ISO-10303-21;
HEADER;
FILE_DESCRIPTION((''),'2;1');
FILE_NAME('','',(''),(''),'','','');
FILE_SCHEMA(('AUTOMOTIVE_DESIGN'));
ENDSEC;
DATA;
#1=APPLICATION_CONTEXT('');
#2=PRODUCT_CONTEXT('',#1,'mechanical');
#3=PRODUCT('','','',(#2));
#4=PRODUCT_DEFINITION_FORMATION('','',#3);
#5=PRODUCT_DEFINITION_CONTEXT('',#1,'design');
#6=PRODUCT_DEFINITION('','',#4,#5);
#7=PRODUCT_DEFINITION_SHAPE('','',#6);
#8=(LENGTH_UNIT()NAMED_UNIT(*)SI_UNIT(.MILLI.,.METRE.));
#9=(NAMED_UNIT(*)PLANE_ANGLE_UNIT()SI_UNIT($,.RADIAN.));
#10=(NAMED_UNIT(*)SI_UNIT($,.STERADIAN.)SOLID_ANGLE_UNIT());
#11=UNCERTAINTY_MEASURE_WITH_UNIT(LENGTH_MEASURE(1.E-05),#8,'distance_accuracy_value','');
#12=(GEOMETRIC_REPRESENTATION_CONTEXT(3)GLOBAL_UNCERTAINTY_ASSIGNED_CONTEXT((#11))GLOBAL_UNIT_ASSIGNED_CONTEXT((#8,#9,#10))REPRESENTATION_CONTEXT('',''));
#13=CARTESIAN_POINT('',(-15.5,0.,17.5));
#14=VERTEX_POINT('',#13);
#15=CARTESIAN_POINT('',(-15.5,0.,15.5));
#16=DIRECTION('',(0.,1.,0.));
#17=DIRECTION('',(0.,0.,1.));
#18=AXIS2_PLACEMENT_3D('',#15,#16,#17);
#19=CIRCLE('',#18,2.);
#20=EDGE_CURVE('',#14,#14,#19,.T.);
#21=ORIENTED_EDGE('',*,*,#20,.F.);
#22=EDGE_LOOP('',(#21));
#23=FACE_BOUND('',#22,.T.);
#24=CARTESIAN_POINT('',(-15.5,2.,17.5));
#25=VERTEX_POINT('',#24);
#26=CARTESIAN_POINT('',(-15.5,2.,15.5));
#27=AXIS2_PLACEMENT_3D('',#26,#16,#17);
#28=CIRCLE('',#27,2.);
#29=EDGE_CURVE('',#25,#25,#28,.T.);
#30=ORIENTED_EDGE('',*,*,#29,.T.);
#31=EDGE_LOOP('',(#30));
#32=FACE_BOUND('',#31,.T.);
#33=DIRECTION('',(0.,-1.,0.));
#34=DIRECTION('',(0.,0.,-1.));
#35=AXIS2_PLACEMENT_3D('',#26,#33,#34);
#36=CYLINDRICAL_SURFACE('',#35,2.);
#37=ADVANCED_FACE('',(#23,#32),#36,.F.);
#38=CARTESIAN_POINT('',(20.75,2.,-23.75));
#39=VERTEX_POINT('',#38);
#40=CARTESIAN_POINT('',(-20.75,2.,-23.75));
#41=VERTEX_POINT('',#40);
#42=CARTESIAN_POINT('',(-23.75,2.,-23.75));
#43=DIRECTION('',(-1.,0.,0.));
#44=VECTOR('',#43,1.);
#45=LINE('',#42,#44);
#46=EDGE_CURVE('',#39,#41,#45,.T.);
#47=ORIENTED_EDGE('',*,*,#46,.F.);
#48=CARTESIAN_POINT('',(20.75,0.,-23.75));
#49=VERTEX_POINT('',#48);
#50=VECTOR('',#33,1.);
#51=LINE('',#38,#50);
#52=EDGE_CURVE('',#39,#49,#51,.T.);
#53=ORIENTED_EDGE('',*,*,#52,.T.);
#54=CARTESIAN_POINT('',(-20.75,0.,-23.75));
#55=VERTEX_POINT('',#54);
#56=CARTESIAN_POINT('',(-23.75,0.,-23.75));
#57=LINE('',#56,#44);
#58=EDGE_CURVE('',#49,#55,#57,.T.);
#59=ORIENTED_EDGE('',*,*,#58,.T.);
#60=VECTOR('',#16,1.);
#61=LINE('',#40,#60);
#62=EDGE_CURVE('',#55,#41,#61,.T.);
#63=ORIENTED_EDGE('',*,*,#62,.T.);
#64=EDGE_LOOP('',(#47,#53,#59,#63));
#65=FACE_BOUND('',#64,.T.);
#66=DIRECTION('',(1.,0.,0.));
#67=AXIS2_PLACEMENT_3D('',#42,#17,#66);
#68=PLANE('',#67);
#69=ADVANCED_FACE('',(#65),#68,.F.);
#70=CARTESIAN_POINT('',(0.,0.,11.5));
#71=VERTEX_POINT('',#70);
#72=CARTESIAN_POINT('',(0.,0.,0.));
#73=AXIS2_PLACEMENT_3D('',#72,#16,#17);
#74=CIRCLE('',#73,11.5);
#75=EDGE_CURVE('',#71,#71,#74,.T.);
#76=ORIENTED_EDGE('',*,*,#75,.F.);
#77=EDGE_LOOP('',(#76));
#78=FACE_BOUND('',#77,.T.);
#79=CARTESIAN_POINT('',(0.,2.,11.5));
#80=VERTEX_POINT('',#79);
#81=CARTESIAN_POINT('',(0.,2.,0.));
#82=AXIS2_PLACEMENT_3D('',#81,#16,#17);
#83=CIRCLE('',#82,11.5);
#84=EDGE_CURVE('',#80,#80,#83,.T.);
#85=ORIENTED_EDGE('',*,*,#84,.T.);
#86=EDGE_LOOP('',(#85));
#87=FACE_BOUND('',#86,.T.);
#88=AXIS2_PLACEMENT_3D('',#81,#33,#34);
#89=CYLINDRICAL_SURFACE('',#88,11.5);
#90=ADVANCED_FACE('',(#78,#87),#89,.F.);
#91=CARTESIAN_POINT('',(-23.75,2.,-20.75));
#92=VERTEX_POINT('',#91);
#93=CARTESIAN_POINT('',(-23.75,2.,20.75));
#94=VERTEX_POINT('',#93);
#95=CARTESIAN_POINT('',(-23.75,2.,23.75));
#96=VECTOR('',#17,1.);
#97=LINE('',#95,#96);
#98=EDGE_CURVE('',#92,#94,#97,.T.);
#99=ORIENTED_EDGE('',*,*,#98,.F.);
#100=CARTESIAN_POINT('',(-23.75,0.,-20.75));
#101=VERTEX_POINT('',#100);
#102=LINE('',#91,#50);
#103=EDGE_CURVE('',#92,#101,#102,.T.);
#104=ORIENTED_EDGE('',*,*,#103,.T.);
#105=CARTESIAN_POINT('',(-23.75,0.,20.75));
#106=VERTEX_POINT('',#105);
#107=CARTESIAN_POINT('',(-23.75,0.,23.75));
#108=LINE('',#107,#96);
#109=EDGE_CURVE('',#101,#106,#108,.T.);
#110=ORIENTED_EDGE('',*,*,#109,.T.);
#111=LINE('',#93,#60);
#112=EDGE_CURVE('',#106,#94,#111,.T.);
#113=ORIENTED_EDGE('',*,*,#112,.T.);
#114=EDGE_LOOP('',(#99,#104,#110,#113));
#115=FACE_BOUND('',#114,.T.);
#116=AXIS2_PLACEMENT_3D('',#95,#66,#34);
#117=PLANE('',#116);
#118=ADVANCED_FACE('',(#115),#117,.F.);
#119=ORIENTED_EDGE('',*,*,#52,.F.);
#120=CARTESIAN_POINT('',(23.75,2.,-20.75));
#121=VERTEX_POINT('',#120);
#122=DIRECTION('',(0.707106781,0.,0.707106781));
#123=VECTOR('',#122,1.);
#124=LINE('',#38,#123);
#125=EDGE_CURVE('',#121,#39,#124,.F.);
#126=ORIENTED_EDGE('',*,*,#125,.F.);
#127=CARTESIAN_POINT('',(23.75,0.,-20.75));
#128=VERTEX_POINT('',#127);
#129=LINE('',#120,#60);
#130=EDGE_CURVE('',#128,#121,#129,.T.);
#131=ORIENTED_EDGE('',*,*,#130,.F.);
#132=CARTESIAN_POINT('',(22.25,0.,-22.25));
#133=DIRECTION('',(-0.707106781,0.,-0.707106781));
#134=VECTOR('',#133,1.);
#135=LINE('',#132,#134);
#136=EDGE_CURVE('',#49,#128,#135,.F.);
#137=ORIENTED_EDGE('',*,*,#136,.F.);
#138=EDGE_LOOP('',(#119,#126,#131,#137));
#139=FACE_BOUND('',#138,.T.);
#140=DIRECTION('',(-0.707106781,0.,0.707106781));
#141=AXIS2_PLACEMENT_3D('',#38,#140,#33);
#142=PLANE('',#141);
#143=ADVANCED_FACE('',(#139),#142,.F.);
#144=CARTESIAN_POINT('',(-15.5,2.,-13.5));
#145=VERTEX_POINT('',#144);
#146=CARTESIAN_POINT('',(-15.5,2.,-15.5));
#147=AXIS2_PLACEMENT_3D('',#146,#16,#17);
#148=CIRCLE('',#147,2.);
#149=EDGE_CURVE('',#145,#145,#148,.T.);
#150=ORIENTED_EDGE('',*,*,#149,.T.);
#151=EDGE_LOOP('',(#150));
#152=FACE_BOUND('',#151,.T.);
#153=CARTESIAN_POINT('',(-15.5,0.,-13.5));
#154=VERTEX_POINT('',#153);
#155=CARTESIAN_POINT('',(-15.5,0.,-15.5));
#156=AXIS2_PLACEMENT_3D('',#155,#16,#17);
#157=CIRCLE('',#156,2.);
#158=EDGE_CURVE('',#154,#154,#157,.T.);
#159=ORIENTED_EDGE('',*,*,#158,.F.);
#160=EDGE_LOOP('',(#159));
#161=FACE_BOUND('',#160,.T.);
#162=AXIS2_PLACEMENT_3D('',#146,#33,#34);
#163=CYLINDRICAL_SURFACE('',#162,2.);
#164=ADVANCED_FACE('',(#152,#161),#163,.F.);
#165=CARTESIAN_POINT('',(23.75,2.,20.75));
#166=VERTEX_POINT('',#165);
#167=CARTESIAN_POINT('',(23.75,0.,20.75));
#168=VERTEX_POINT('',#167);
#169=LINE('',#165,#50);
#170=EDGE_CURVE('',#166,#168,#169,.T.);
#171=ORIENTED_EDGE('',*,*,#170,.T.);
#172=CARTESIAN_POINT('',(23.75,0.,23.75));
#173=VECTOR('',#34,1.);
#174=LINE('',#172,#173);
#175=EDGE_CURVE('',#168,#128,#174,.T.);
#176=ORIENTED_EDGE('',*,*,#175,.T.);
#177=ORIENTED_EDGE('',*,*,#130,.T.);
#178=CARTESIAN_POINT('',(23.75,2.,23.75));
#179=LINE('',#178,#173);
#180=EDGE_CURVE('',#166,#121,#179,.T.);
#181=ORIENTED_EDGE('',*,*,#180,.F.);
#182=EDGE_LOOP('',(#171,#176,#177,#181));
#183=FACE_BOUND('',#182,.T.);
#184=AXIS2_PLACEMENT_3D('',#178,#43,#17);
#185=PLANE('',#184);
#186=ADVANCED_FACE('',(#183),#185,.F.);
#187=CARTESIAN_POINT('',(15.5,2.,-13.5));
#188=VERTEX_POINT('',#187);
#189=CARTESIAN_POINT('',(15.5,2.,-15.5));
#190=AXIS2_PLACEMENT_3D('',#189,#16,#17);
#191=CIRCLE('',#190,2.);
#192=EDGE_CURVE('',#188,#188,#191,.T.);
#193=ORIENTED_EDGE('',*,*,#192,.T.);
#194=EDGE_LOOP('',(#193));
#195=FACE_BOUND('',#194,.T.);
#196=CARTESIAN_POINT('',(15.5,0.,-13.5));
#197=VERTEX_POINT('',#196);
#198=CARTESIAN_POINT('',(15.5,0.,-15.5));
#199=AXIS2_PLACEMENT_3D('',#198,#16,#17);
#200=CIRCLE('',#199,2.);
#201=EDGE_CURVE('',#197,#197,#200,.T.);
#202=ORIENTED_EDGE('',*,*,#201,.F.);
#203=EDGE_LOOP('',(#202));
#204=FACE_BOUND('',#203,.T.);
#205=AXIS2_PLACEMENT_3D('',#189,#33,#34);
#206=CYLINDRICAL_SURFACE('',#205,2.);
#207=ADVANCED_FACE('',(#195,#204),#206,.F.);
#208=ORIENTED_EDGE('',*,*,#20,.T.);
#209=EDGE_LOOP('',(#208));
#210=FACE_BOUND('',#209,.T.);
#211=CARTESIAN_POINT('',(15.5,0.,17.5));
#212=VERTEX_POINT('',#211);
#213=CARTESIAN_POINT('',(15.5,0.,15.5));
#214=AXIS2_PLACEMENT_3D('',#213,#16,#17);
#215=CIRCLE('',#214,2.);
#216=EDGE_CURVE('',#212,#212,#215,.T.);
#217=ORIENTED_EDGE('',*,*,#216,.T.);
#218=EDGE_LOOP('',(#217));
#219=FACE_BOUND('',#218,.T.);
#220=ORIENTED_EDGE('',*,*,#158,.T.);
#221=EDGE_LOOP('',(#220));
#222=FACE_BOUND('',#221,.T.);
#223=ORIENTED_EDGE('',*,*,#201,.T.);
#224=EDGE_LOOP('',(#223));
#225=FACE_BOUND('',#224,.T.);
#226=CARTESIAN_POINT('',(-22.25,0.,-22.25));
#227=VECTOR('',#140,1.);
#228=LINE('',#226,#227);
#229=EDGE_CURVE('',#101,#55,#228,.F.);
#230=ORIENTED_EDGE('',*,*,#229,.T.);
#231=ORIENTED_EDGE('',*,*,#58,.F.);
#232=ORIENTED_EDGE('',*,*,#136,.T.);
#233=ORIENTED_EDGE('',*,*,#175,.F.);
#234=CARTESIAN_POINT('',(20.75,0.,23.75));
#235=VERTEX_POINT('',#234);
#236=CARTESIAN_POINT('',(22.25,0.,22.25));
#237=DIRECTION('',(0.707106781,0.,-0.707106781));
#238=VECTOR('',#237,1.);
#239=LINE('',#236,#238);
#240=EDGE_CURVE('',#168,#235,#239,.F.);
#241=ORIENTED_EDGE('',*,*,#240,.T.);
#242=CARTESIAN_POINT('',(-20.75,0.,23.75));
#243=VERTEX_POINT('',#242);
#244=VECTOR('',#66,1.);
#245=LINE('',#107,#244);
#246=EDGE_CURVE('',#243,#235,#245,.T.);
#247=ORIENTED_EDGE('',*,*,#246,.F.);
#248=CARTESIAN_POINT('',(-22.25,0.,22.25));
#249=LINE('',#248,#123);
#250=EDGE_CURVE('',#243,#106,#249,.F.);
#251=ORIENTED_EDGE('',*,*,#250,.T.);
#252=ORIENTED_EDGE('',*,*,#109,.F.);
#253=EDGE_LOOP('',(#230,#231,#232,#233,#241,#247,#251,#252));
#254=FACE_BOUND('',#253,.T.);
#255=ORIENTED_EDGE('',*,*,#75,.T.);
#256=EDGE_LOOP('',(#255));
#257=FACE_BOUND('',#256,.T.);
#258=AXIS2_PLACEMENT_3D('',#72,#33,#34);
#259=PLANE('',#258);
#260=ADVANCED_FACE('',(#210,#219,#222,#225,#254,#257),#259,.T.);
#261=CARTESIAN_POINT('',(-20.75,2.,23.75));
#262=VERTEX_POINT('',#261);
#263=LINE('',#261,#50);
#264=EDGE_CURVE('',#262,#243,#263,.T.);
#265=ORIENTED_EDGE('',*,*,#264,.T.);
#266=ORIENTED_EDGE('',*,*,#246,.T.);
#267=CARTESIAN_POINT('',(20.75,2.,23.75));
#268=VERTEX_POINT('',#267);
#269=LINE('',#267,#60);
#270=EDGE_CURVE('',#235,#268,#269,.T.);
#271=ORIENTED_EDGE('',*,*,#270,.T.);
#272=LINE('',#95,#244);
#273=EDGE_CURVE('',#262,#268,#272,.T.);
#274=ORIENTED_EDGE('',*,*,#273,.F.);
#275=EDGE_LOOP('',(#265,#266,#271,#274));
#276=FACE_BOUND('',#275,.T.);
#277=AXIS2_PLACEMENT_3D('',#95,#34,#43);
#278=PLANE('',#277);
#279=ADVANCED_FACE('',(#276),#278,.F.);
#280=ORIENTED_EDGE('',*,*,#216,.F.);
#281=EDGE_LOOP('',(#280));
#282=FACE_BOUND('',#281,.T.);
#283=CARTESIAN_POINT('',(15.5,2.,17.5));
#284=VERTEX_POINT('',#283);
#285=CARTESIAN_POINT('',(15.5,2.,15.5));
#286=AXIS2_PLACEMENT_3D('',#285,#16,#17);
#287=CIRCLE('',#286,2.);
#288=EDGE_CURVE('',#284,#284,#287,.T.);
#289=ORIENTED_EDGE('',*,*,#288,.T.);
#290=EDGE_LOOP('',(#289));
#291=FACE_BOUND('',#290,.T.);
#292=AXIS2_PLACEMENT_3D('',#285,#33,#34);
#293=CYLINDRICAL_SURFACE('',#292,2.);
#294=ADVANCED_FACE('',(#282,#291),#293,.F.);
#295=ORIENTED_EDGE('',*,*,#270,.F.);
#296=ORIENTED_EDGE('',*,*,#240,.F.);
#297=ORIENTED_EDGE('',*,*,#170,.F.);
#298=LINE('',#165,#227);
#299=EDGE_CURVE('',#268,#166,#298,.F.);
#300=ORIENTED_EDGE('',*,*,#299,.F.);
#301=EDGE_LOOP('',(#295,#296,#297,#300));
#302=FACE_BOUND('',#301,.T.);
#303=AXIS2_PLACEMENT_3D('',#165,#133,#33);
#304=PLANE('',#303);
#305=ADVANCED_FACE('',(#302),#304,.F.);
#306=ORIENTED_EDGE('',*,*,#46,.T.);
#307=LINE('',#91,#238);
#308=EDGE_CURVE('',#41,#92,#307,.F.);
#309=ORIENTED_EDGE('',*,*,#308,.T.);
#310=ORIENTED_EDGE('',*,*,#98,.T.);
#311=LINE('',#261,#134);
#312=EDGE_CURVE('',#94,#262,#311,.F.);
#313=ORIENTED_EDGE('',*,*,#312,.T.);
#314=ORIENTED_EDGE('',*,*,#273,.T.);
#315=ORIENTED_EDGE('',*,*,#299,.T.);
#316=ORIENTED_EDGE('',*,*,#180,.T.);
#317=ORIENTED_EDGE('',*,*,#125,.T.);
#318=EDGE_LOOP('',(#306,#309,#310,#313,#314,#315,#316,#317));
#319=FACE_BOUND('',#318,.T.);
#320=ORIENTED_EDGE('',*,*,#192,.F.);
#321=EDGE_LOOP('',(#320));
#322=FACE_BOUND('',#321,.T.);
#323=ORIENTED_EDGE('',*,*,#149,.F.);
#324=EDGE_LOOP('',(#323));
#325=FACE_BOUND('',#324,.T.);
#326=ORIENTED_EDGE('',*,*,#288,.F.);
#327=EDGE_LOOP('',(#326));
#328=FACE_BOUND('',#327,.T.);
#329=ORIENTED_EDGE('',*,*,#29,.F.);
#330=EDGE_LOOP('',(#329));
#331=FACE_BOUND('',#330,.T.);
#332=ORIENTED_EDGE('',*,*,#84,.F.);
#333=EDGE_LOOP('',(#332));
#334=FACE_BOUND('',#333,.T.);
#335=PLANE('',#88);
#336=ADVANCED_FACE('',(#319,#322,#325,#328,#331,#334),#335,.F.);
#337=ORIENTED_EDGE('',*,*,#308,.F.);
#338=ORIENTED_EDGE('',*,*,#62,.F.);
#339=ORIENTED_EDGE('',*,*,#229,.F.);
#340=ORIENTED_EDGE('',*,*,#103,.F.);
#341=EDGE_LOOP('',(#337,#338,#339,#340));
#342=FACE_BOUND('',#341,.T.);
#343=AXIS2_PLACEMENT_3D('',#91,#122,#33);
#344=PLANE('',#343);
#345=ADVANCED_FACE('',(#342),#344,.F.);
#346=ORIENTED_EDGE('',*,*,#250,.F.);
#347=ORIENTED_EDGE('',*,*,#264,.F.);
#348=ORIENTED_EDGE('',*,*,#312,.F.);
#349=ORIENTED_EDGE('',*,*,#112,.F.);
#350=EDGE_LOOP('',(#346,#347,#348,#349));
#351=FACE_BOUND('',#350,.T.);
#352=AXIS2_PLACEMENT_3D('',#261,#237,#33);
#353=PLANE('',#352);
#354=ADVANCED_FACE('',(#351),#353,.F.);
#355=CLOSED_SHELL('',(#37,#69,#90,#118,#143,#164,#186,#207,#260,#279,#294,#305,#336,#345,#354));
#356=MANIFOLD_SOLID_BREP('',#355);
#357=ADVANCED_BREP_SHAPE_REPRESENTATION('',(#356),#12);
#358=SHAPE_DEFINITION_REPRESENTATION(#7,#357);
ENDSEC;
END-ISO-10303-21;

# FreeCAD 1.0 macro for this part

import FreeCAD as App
import Part
import Sketcher
Q = App.Units.Quantity


def edges_at(feature, points):
    """Names of the edges that pass closest to the given points."""
    edges = feature.Shape.Edges
    near = lambda p: min(range(len(edges)), key=lambda i: edges[i].distToShape(Part.Vertex(*p))[0])
    return sorted({f"Edge{near(p) + 1}" for p in points})


def add_polygon(sketch, points):
    """Adds a closed chain of lines whose ends are joined by coincident constraints."""
    first, n = sketch.GeometryCount, len(points)
    for a, b in zip(points, points[1:] + points[:1]):
        sketch.addGeometry(Part.LineSegment(App.Vector(*a, 0), App.Vector(*b, 0)), False)
    for i in range(n):
        sketch.addConstraint(Sketcher.Constraint("Coincident", first + i, 2, first + (i + 1) % n, 1))

doc = App.newDocument("Part")
body = doc.addObject("PartDesign::Body", "Body")

sketch1 = doc.addObject("Sketcher::SketchObject", "Sketch")
body.addObject(sketch1)
sketch1.AttachmentSupport = (doc.XZ_Plane, [""])
sketch1.MapMode = "FlatFace"
add_polygon(sketch1, [(-23.8, -23.8), (-23.8, 23.8), (23.8, 23.8), (23.8, -23.8)])
sketch1.addGeometry(Part.Circle(App.Vector(-15.5, 15.5, 0), App.Vector(0, 0, 1), 2), False)
sketch1.addGeometry(Part.Circle(App.Vector(15.5, 15.5, 0), App.Vector(0, 0, 1), 2), False)
sketch1.addGeometry(Part.Circle(App.Vector(-15.5, -15.5, 0), App.Vector(0, 0, 1), 2), False)
sketch1.addGeometry(Part.Circle(App.Vector(0, 0, 0), App.Vector(0, 0, 1), 11.5), False)
sketch1.addGeometry(Part.Circle(App.Vector(15.5, -15.5, 0), App.Vector(0, 0, 1), 2), False)
sketch1.addConstraint([
    Sketcher.Constraint("Vertical", 0),
    Sketcher.Constraint("Horizontal", 1),
    Sketcher.Constraint("Vertical", 2),
    Sketcher.Constraint("Horizontal", 3),
    Sketcher.Constraint("Coincident", 7, 3, -1, 1),
    Sketcher.Constraint("Equal", 4, 5),
    Sketcher.Constraint("Equal", 5, 6),
    Sketcher.Constraint("Equal", 6, 8),
    Sketcher.Constraint("Symmetric", 5, 3, 6, 3, -1, 1),
    Sketcher.Constraint("Symmetric", 4, 3, 8, 3, -1, 1),
    Sketcher.Constraint("Symmetric", 0, 2, 2, 2, -1, 1),
    Sketcher.Constraint("Symmetric", 4, 3, 5, 3, -2),
    Sketcher.Constraint("Equal", 3, 0),
    Sketcher.Constraint("Diameter", 4, Q("4 mm")),
    Sketcher.Constraint("Diameter", 7, Q("23 mm")),
    Sketcher.Constraint("DistanceX", 1, 1, 1, 2, Q("47.5 mm")),
    Sketcher.Constraint("DistanceX", 4, 3, 5, 3, Q("31 mm")),
    Sketcher.Constraint("DistanceY", 6, 3, 4, 3, Q("31 mm")),
])
pad1 = doc.addObject("PartDesign::Pad", "Pad")
body.addObject(pad1)
pad1.Profile = sketch1
pad1.Length = 2
pad1.Reversed = True
doc.recompute()

chamfer = doc.addObject("PartDesign::Chamfer", "Chamfer")
body.addObject(chamfer)
chamfer.Base = (pad1, edges_at(pad1, [
    (23.75, 1, 23.75),
    (-23.75, 1, 23.75),
    (-23.75, 1, -23.75),
    (23.75, 1, -23.75),
]))
chamfer.Size = 3

doc.recompute()
